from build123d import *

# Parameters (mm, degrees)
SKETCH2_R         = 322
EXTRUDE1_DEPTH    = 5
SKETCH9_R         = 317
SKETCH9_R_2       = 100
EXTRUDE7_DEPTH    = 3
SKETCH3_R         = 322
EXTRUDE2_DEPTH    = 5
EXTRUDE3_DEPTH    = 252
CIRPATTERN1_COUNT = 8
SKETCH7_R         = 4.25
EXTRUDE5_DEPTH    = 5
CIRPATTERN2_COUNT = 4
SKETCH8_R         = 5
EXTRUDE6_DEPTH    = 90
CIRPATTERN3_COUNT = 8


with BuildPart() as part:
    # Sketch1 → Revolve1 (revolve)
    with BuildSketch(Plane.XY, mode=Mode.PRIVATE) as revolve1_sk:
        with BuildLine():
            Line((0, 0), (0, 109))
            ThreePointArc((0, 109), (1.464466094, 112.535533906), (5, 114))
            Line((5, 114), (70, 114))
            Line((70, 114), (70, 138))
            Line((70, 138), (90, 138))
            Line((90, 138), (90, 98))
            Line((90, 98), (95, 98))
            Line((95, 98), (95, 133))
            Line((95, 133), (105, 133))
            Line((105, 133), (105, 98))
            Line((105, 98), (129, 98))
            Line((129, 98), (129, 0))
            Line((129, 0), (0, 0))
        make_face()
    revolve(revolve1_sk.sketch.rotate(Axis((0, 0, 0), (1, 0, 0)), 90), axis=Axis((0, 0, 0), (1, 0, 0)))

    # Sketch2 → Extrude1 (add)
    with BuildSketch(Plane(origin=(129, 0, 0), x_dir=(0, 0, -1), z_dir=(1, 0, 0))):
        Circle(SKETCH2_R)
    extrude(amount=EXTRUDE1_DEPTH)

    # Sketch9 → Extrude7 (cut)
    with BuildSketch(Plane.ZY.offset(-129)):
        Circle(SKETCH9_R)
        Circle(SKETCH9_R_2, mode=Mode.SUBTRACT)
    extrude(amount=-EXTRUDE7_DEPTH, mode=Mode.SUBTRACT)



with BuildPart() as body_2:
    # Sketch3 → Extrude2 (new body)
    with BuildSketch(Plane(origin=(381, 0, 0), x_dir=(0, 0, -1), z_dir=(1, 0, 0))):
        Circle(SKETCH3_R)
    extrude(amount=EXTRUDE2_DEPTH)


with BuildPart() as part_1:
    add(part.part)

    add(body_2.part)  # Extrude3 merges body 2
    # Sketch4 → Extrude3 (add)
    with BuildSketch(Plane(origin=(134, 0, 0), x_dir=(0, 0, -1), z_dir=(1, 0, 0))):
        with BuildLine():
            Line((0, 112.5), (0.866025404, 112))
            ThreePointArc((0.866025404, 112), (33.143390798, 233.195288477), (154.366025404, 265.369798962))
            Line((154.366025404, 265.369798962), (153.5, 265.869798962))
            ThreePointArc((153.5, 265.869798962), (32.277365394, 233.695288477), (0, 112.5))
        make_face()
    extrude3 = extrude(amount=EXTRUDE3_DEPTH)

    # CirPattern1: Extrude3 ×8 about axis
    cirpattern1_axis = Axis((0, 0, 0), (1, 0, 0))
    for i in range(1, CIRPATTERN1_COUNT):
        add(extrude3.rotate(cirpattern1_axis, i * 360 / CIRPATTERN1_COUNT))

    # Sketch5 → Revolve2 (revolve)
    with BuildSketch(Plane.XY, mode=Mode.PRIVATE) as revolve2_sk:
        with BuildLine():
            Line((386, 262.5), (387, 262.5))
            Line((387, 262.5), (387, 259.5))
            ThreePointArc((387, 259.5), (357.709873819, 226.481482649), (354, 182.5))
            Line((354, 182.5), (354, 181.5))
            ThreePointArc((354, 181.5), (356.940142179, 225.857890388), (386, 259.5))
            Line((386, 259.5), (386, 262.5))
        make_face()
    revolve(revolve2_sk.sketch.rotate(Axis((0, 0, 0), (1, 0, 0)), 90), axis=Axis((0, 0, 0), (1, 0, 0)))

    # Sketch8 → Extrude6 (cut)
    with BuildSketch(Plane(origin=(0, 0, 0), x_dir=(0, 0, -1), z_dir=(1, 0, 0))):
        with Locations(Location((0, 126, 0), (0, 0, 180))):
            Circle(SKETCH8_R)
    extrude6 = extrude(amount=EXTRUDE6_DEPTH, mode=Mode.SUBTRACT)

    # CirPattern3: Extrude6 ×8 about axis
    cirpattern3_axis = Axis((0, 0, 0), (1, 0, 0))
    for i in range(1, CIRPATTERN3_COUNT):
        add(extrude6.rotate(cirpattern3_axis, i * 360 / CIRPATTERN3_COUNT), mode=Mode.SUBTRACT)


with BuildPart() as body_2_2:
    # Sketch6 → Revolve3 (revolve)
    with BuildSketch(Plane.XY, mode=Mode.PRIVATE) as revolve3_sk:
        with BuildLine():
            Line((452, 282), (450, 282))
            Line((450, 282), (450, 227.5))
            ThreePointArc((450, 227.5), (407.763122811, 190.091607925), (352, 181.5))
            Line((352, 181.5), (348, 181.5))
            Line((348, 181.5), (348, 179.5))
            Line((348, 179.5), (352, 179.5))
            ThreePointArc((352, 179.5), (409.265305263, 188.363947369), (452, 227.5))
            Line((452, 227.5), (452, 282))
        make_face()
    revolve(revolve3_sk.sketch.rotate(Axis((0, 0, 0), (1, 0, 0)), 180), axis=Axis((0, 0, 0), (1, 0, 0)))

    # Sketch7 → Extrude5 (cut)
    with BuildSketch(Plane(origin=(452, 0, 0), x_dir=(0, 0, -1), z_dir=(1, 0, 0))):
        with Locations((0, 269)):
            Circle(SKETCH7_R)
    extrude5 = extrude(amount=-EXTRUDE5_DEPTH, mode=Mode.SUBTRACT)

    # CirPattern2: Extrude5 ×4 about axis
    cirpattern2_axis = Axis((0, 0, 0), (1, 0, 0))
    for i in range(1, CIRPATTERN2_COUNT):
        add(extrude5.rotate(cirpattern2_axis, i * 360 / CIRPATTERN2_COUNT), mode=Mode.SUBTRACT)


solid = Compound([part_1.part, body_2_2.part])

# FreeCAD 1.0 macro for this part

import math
import FreeCAD as App
import Part
import Sketcher
from FreeCAD import Vector
Q = App.Units.Quantity

doc = App.newDocument("Part")
body = doc.addObject("PartDesign::Body", "Body")

# Sketch on XY plane
sketch1 = body.newObject("Sketcher::SketchObject", "Sketch")
sketch1.AttachmentSupport = (doc.getObject("XY_Plane"), [""])
sketch1.MapMode = "FlatFace"
sketch1.addGeometry([
    Part.LineSegment(Vector(0, 109, 0), Vector(0, 0, 0)),  # 0
    Part.LineSegment(Vector(0, 0, 0), Vector(129, 0, 0)),  # 1
    Part.LineSegment(Vector(129, 0, 0), Vector(129, 98, 0)),  # 2
    Part.LineSegment(Vector(129, 98, 0), Vector(105, 98, 0)),  # 3
    Part.LineSegment(Vector(105, 98, 0), Vector(105, 133, 0)),  # 4
    Part.LineSegment(Vector(105, 133, 0), Vector(95, 133, 0)),  # 5
    Part.LineSegment(Vector(95, 133, 0), Vector(95, 98, 0)),  # 6
    Part.LineSegment(Vector(95, 98, 0), Vector(90, 98, 0)),  # 7
    Part.LineSegment(Vector(90, 98, 0), Vector(90, 138, 0)),  # 8
    Part.LineSegment(Vector(90, 138, 0), Vector(70, 138, 0)),  # 9
    Part.LineSegment(Vector(70, 138, 0), Vector(70, 114, 0)),  # 10
    Part.LineSegment(Vector(70, 114, 0), Vector(5, 114, 0)),  # 11
    Part.ArcOfCircle(Part.Circle(Vector(5, 109, 0), Vector(0, 0, 1), 5), math.radians(90), math.radians(180)),  # 12
], False)
sketch1.addConstraint([
    Sketcher.Constraint("Coincident", 0, 2, 1, 1),
    Sketcher.Constraint("Coincident", 1, 2, 2, 1),
    Sketcher.Constraint("Coincident", 2, 2, 3, 1),
    Sketcher.Constraint("Coincident", 3, 2, 4, 1),
    Sketcher.Constraint("Coincident", 4, 2, 5, 1),
    Sketcher.Constraint("Coincident", 5, 2, 6, 1),
    Sketcher.Constraint("Coincident", 6, 2, 7, 1),
    Sketcher.Constraint("Coincident", 7, 2, 8, 1),
    Sketcher.Constraint("Coincident", 8, 2, 9, 1),
    Sketcher.Constraint("Coincident", 9, 2, 10, 1),
    Sketcher.Constraint("Coincident", 10, 2, 11, 1),
    Sketcher.Constraint("Tangent", 11, 2, 12, 1),
    Sketcher.Constraint("Tangent", 12, 2, 0, 1),
    Sketcher.Constraint("Vertical", 0),
    Sketcher.Constraint("Horizontal", 1),
    Sketcher.Constraint("Vertical", 2),
    Sketcher.Constraint("Horizontal", 3),
    Sketcher.Constraint("Vertical", 4),
    Sketcher.Constraint("Horizontal", 5),
    Sketcher.Constraint("Vertical", 6),
    Sketcher.Constraint("Horizontal", 7),
    Sketcher.Constraint("Vertical", 8),
    Sketcher.Constraint("Horizontal", 9),
    Sketcher.Constraint("Vertical", 10),
    Sketcher.Constraint("Horizontal", 11),
    Sketcher.Constraint("Coincident", 0, 2, -1, 1),
    Sketcher.Constraint("Horizontal", 3, 2, 6, 2),
    Sketcher.Constraint("Equal", 3, 10),
    Sketcher.Constraint("Radius", 12, Q("5 mm")),
    Sketcher.Constraint("DistanceX", 1, 1, 1, 2, Q("129 mm")),
    Sketcher.Constraint("DistanceX", 3, 2, 3, 1, Q("24 mm")),
    Sketcher.Constraint("DistanceX", 5, 2, 5, 1, Q("10 mm")),
    Sketcher.Constraint("DistanceX", 7, 2, 7, 1, Q("5 mm")),
    Sketcher.Constraint("DistanceX", 9, 2, 9, 1, Q("20 mm")),
    Sketcher.Constraint("DistanceY", 0, 2, 0, 1, Q("109 mm")),
    Sketcher.Constraint("DistanceY", 2, 1, 2, 2, Q("98 mm")),
    Sketcher.Constraint("DistanceY", 4, 1, 4, 2, Q("35 mm")),
])
revolution = body.newObject("PartDesign::Revolution", "Revolution")
revolution.Profile = sketch1
revolution.ReferenceAxis = (sketch1, ["H_Axis"])
revolution.Angle = 360

# Sketch on YZ plane
sketch2 = body.newObject("Sketcher::SketchObject", "Sketch001")
sketch2.AttachmentSupport = (doc.getObject("YZ_Plane"), [""])
sketch2.MapMode = "FlatFace"
sketch2.AttachmentOffset = App.Placement(Vector(0, 0, 129), App.Rotation())
sketch2.addGeometry(Part.Circle(Vector(0, 0, 0), Vector(0, 0, 1), 322), False)
sketch2.addConstraint([
    Sketcher.Constraint("Coincident", 0, 3, -1, 1),
    Sketcher.Constraint("Diameter", 0, Q("644 mm")),
])
pad1 = body.newObject("PartDesign::Pad", "Pad")
pad1.Profile = sketch2
pad1.Length = 5

# Sketch on YZ plane
sketch3 = body.newObject("Sketcher::SketchObject", "Sketch002")
sketch3.AttachmentSupport = (doc.getObject("YZ_Plane"), [""])
sketch3.MapMode = "FlatFace"
sketch3.AttachmentOffset = App.Placement(Vector(0, 0, 129), App.Rotation())
sketch3.addGeometry([
    Part.Circle(Vector(0, 0, 0), Vector(0, 0, 1), 317),
    Part.Circle(Vector(0, 0, 0), Vector(0, 0, 1), 100),
], False)
sketch3.addConstraint([
    Sketcher.Constraint("Coincident", 0, 3, -1, 1),
    Sketcher.Constraint("Coincident", 1, 3, -1, 1),
    Sketcher.Constraint("Diameter", 0, Q("634 mm")),
    Sketcher.Constraint("Diameter", 1, Q("200 mm")),
])
pocket1 = body.newObject("PartDesign::Pocket", "Pocket")
pocket1.Profile = sketch3
pocket1.Length = 3
pocket1.Reversed = True
body2 = doc.addObject("PartDesign::Body", "Body001")

# Sketch on YZ plane
sketch4 = body2.newObject("Sketcher::SketchObject", "Sketch003")
sketch4.AttachmentSupport = (doc.getObject("YZ_Plane001"), [""])
sketch4.MapMode = "FlatFace"
sketch4.AttachmentOffset = App.Placement(Vector(0, 0, 381), App.Rotation())
sketch4.addGeometry(Part.Circle(Vector(0, 0, 0), Vector(0, 0, 1), 322), False)
sketch4.addConstraint([
    Sketcher.Constraint("Coincident", 0, 3, -1, 1),
    Sketcher.Constraint("Diameter", 0, Q("644 mm")),
])
pad2 = body2.newObject("PartDesign::Pad", "Pad001")
pad2.Profile = sketch4
pad2.Length = 5
body.AllowCompound = True
doc.recompute()

boolean = body.newObject("PartDesign::Boolean", "Boolean")
boolean.Type = "Fuse"
boolean.addObjects([body2])

# Sketch on YZ plane
sketch5 = body.newObject("Sketcher::SketchObject", "Sketch004")
sketch5.AttachmentSupport = (doc.getObject("YZ_Plane"), [""])
sketch5.MapMode = "FlatFace"
sketch5.AttachmentOffset = App.Placement(Vector(0, 0, 134), App.Rotation())
sketch5.addGeometry([
    Part.LineSegment(Vector(112.5, 0, 0), Vector(112, -0.9, 0)),
    Part.ArcOfCircle(Part.Circle(Vector(144.8, -121.5, 0), Vector(0, 0, 1), 125), math.radians(-15), math.radians(105)),
    Part.LineSegment(Vector(265.4, -154.4, 0), Vector(265.9, -153.5, 0)),
    Part.ArcOfCircle(Part.Circle(Vector(145.3, -120.6, 0), Vector(0, 0, 1), 125), math.radians(-15), math.radians(105)),
], False)
sketch5.addConstraint([
    Sketcher.Constraint("Coincident", 0, 2, 1, 2),
    Sketcher.Constraint("Coincident", 1, 1, 2, 1),
    Sketcher.Constraint("Coincident", 2, 2, 3, 1),
    Sketcher.Constraint("Coincident", 3, 2, 0, 1),
    Sketcher.Constraint("Equal", 1, 3),
    Sketcher.Constraint("PointOnObject", 3, 2, -1),
    Sketcher.Constraint("Parallel", 0, 2),
    Sketcher.Constraint("Equal", 0, 2),
    Sketcher.Constraint("Radius", 1, Q("125 mm")),
    Sketcher.Constraint("Angle", 0, Q("-120 deg")),
    Sketcher.Constraint("Distance", 0, Q("1 mm")),
    Sketcher.Constraint("DistanceX", -1, 1, 0, 2, Q("112 mm")),
    Sketcher.Constraint("DistanceY", 2, 2, -1, 1, Q("153.5 mm")),
    Sketcher.Constraint("DistanceX", -1, 1, 1, 1, Q("265.369799 mm")),
])
pad3 = body.newObject("PartDesign::Pad", "Pad002")
pad3.Profile = sketch5
pad3.Length = 252
doc.recompute()

polarpattern = body.newObject("PartDesign::PolarPattern", "PolarPattern")
polarpattern.Originals = [pad3]
polarpattern.Axis = (doc.getObject("X_Axis"), [""])
polarpattern.Angle = 360
polarpattern.Occurrences = 8
body.Tip = polarpattern

# Sketch on XY plane
sketch6 = body.newObject("Sketcher::SketchObject", "Sketch005")
sketch6.AttachmentSupport = (doc.getObject("XY_Plane"), [""])
sketch6.MapMode = "FlatFace"
sketch6.addGeometry([
    Part.LineSegment(Vector(387, 262.5, 0), Vector(386, 262.5, 0)),  # 0
    Part.LineSegment(Vector(386, 262.5, 0), Vector(386, 259.5, 0)),  # 1
    Part.ArcOfCircle(Part.Circle(Vector(421.7, 199.3, 0), Vector(0, 0, 1), 70), math.radians(121), math.radians(195)),  # 2
    Part.LineSegment(Vector(354, 181.5, 0), Vector(354, 182.5, 0)),  # 3
    Part.ArcOfCircle(Part.Circle(Vector(422.1, 198.9, 0), Vector(0, 0, 1), 70), math.radians(120), math.radians(194)),  # 4
    Part.LineSegment(Vector(387, 259.5, 0), Vector(387, 262.5, 0)),  # 5
], False)
sketch6.addConstraint([
    Sketcher.Constraint("Coincident", 0, 2, 1, 1),
    Sketcher.Constraint("Coincident", 1, 2, 2, 1),
    Sketcher.Constraint("Coincident", 2, 2, 3, 1),
    Sketcher.Constraint("Coincident", 3, 2, 4, 2),
    Sketcher.Constraint("Coincident", 4, 1, 5, 1),
    Sketcher.Constraint("Coincident", 5, 2, 0, 1),
    Sketcher.Constraint("Horizontal", 0),
    Sketcher.Constraint("Vertical", 1),
    Sketcher.Constraint("Vertical", 3),
    Sketcher.Constraint("Vertical", 5),
    Sketcher.Constraint("Equal", 2, 4),
    Sketcher.Constraint("Horizontal", 1, 2, 4, 1),
    Sketcher.Constraint("Equal", 0, 3),
    Sketcher.Constraint("Radius", 2, Q("70 mm")),
    Sketcher.Constraint("DistanceX", 0, 2, 0, 1, Q("1 mm")),
    Sketcher.Constraint("DistanceY", 1, 2, 1, 1, Q("3 mm")),
    Sketcher.Constraint("DistanceX", -1, 1, 0, 2, Q("386 mm")),
    Sketcher.Constraint("DistanceX", -1, 1, 2, 2, Q("354 mm")),
    Sketcher.Constraint("DistanceY", 2, 2, 1, 2, Q("78 mm")),
    Sketcher.Constraint("DistanceY", -1, 1, 0, 2, Q("262.5 mm")),
])
revolution2 = body.newObject("PartDesign::Revolution", "Revolution001")
revolution2.Profile = sketch6
revolution2.ReferenceAxis = (sketch6, ["H_Axis"])
revolution2.Angle = 360

# Sketch on YZ plane
sketch7 = body.newObject("Sketcher::SketchObject", "Sketch006")
sketch7.AttachmentSupport = (doc.getObject("YZ_Plane"), [""])
sketch7.MapMode = "FlatFace"
sketch7.addGeometry(Part.Circle(Vector(126, 0, 0), Vector(0, 0, 1), 5), False)
sketch7.addConstraint([
    Sketcher.Constraint("PointOnObject", 0, 3, -1),
    Sketcher.Constraint("Diameter", 0, Q("10 mm")),
    Sketcher.Constraint("DistanceX", -1, 1, 0, 3, Q("126 mm")),
])
pocket2 = body.newObject("PartDesign::Pocket", "Pocket001")
pocket2.Profile = sketch7
pocket2.Length = 90
pocket2.Reversed = True
doc.recompute()

polarpattern2 = body.newObject("PartDesign::PolarPattern", "PolarPattern001")
polarpattern2.Originals = [pocket2]
polarpattern2.Axis = (doc.getObject("X_Axis"), [""])
polarpattern2.Angle = 360
polarpattern2.Occurrences = 8
body.Tip = polarpattern2
body3 = doc.addObject("PartDesign::Body", "Body002")

# Sketch on XY plane
sketch8 = body3.newObject("Sketcher::SketchObject", "Sketch007")
sketch8.AttachmentSupport = (doc.getObject("XY_Plane002"), [""])
sketch8.MapMode = "FlatFace"
sketch8.addGeometry([
    Part.LineSegment(Vector(452, 282, 0), Vector(450, 282, 0)),  # 0
    Part.LineSegment(Vector(450, 282, 0), Vector(450, 227.5, 0)),  # 1
    Part.ArcOfCircle(Part.Circle(Vector(365.3, 280.6, 0), Vector(0, 0, 1), 100), math.radians(-98), math.radians(-32)),  # 2
    Part.LineSegment(Vector(352, 181.5, 0), Vector(348, 181.5, 0)),  # 3
    Part.LineSegment(Vector(348, 181.5, 0), Vector(348, 179.5, 0)),  # 4
    Part.LineSegment(Vector(348, 179.5, 0), Vector(352, 179.5, 0)),  # 5
    Part.ArcOfCircle(Part.Circle(Vector(366, 278.5, 0), Vector(0, 0, 1), 100), math.radians(-98), math.radians(-31)),  # 6
    Part.LineSegment(Vector(452, 227.5, 0), Vector(452, 282, 0)),  # 7
], False)
sketch8.addConstraint([
    Sketcher.Constraint("Coincident", 0, 2, 1, 1),
    Sketcher.Constraint("Coincident", 1, 2, 2, 2),
    Sketcher.Constraint("Coincident", 2, 1, 3, 1),
    Sketcher.Constraint("Coincident", 3, 2, 4, 1),
    Sketcher.Constraint("Coincident", 4, 2, 5, 1),
    Sketcher.Constraint("Coincident", 5, 2, 6, 1),
    Sketcher.Constraint("Coincident", 6, 2, 7, 1),
    Sketcher.Constraint("Coincident", 7, 2, 0, 1),
    Sketcher.Constraint("Horizontal", 0),
    Sketcher.Constraint("Vertical", 1),
    Sketcher.Constraint("Horizontal", 3),
    Sketcher.Constraint("Vertical", 4),
    Sketcher.Constraint("Horizontal", 5),
    Sketcher.Constraint("Vertical", 7),
    Sketcher.Constraint("Equal", 2, 6),
    Sketcher.Constraint("Horizontal", 1, 2, 6, 2),
    Sketcher.Constraint("Vertical", 2, 1, 5, 2),
    Sketcher.Constraint("Equal", 0, 4),
    Sketcher.Constraint("Radius", 2, Q("100 mm")),
    Sketcher.Constraint("DistanceX", 0, 2, 0, 1, Q("2 mm")),
    Sketcher.Constraint("DistanceX", 3, 2, 3, 1, Q("4 mm")),
    Sketcher.Constraint("DistanceY", 1, 2, 1, 1, Q("54.5 mm")),
    Sketcher.Constraint("DistanceX", -1, 1, 0, 2, Q("450 mm")),
    Sketcher.Constraint("DistanceY", -1, 1, 0, 2, Q("282 mm")),
    Sketcher.Constraint("DistanceX", -1, 1, 2, 1, Q("352 mm")),
    Sketcher.Constraint("DistanceY", 2, 1, 1, 2, Q("46 mm")),
])
revolution3 = body3.newObject("PartDesign::Revolution", "Revolution002")
revolution3.Profile = sketch8
revolution3.ReferenceAxis = (sketch8, ["H_Axis"])
revolution3.Angle = 360

# Sketch on YZ plane
sketch9 = body3.newObject("Sketcher::SketchObject", "Sketch008")
sketch9.AttachmentSupport = (doc.getObject("YZ_Plane002"), [""])
sketch9.MapMode = "FlatFace"
sketch9.AttachmentOffset = App.Placement(Vector(0, 0, 452), App.Rotation())
sketch9.addGeometry(Part.Circle(Vector(269, 0, 0), Vector(0, 0, 1), 4.2), False)
sketch9.addConstraint([
    Sketcher.Constraint("PointOnObject", 0, 3, -1),
    Sketcher.Constraint("Diameter", 0, Q("8.5 mm")),
    Sketcher.Constraint("DistanceX", -1, 1, 0, 3, Q("269 mm")),
])
pocket3 = body3.newObject("PartDesign::Pocket", "Pocket002")
pocket3.Profile = sketch9
pocket3.Length = 5
doc.recompute()

polarpattern3 = body3.newObject("PartDesign::PolarPattern", "PolarPattern002")
polarpattern3.Originals = [pocket3]
polarpattern3.Axis = (doc.getObject("X_Axis002"), [""])
polarpattern3.Angle = 360
polarpattern3.Occurrences = 4
body3.Tip = polarpattern3

doc.recompute()
